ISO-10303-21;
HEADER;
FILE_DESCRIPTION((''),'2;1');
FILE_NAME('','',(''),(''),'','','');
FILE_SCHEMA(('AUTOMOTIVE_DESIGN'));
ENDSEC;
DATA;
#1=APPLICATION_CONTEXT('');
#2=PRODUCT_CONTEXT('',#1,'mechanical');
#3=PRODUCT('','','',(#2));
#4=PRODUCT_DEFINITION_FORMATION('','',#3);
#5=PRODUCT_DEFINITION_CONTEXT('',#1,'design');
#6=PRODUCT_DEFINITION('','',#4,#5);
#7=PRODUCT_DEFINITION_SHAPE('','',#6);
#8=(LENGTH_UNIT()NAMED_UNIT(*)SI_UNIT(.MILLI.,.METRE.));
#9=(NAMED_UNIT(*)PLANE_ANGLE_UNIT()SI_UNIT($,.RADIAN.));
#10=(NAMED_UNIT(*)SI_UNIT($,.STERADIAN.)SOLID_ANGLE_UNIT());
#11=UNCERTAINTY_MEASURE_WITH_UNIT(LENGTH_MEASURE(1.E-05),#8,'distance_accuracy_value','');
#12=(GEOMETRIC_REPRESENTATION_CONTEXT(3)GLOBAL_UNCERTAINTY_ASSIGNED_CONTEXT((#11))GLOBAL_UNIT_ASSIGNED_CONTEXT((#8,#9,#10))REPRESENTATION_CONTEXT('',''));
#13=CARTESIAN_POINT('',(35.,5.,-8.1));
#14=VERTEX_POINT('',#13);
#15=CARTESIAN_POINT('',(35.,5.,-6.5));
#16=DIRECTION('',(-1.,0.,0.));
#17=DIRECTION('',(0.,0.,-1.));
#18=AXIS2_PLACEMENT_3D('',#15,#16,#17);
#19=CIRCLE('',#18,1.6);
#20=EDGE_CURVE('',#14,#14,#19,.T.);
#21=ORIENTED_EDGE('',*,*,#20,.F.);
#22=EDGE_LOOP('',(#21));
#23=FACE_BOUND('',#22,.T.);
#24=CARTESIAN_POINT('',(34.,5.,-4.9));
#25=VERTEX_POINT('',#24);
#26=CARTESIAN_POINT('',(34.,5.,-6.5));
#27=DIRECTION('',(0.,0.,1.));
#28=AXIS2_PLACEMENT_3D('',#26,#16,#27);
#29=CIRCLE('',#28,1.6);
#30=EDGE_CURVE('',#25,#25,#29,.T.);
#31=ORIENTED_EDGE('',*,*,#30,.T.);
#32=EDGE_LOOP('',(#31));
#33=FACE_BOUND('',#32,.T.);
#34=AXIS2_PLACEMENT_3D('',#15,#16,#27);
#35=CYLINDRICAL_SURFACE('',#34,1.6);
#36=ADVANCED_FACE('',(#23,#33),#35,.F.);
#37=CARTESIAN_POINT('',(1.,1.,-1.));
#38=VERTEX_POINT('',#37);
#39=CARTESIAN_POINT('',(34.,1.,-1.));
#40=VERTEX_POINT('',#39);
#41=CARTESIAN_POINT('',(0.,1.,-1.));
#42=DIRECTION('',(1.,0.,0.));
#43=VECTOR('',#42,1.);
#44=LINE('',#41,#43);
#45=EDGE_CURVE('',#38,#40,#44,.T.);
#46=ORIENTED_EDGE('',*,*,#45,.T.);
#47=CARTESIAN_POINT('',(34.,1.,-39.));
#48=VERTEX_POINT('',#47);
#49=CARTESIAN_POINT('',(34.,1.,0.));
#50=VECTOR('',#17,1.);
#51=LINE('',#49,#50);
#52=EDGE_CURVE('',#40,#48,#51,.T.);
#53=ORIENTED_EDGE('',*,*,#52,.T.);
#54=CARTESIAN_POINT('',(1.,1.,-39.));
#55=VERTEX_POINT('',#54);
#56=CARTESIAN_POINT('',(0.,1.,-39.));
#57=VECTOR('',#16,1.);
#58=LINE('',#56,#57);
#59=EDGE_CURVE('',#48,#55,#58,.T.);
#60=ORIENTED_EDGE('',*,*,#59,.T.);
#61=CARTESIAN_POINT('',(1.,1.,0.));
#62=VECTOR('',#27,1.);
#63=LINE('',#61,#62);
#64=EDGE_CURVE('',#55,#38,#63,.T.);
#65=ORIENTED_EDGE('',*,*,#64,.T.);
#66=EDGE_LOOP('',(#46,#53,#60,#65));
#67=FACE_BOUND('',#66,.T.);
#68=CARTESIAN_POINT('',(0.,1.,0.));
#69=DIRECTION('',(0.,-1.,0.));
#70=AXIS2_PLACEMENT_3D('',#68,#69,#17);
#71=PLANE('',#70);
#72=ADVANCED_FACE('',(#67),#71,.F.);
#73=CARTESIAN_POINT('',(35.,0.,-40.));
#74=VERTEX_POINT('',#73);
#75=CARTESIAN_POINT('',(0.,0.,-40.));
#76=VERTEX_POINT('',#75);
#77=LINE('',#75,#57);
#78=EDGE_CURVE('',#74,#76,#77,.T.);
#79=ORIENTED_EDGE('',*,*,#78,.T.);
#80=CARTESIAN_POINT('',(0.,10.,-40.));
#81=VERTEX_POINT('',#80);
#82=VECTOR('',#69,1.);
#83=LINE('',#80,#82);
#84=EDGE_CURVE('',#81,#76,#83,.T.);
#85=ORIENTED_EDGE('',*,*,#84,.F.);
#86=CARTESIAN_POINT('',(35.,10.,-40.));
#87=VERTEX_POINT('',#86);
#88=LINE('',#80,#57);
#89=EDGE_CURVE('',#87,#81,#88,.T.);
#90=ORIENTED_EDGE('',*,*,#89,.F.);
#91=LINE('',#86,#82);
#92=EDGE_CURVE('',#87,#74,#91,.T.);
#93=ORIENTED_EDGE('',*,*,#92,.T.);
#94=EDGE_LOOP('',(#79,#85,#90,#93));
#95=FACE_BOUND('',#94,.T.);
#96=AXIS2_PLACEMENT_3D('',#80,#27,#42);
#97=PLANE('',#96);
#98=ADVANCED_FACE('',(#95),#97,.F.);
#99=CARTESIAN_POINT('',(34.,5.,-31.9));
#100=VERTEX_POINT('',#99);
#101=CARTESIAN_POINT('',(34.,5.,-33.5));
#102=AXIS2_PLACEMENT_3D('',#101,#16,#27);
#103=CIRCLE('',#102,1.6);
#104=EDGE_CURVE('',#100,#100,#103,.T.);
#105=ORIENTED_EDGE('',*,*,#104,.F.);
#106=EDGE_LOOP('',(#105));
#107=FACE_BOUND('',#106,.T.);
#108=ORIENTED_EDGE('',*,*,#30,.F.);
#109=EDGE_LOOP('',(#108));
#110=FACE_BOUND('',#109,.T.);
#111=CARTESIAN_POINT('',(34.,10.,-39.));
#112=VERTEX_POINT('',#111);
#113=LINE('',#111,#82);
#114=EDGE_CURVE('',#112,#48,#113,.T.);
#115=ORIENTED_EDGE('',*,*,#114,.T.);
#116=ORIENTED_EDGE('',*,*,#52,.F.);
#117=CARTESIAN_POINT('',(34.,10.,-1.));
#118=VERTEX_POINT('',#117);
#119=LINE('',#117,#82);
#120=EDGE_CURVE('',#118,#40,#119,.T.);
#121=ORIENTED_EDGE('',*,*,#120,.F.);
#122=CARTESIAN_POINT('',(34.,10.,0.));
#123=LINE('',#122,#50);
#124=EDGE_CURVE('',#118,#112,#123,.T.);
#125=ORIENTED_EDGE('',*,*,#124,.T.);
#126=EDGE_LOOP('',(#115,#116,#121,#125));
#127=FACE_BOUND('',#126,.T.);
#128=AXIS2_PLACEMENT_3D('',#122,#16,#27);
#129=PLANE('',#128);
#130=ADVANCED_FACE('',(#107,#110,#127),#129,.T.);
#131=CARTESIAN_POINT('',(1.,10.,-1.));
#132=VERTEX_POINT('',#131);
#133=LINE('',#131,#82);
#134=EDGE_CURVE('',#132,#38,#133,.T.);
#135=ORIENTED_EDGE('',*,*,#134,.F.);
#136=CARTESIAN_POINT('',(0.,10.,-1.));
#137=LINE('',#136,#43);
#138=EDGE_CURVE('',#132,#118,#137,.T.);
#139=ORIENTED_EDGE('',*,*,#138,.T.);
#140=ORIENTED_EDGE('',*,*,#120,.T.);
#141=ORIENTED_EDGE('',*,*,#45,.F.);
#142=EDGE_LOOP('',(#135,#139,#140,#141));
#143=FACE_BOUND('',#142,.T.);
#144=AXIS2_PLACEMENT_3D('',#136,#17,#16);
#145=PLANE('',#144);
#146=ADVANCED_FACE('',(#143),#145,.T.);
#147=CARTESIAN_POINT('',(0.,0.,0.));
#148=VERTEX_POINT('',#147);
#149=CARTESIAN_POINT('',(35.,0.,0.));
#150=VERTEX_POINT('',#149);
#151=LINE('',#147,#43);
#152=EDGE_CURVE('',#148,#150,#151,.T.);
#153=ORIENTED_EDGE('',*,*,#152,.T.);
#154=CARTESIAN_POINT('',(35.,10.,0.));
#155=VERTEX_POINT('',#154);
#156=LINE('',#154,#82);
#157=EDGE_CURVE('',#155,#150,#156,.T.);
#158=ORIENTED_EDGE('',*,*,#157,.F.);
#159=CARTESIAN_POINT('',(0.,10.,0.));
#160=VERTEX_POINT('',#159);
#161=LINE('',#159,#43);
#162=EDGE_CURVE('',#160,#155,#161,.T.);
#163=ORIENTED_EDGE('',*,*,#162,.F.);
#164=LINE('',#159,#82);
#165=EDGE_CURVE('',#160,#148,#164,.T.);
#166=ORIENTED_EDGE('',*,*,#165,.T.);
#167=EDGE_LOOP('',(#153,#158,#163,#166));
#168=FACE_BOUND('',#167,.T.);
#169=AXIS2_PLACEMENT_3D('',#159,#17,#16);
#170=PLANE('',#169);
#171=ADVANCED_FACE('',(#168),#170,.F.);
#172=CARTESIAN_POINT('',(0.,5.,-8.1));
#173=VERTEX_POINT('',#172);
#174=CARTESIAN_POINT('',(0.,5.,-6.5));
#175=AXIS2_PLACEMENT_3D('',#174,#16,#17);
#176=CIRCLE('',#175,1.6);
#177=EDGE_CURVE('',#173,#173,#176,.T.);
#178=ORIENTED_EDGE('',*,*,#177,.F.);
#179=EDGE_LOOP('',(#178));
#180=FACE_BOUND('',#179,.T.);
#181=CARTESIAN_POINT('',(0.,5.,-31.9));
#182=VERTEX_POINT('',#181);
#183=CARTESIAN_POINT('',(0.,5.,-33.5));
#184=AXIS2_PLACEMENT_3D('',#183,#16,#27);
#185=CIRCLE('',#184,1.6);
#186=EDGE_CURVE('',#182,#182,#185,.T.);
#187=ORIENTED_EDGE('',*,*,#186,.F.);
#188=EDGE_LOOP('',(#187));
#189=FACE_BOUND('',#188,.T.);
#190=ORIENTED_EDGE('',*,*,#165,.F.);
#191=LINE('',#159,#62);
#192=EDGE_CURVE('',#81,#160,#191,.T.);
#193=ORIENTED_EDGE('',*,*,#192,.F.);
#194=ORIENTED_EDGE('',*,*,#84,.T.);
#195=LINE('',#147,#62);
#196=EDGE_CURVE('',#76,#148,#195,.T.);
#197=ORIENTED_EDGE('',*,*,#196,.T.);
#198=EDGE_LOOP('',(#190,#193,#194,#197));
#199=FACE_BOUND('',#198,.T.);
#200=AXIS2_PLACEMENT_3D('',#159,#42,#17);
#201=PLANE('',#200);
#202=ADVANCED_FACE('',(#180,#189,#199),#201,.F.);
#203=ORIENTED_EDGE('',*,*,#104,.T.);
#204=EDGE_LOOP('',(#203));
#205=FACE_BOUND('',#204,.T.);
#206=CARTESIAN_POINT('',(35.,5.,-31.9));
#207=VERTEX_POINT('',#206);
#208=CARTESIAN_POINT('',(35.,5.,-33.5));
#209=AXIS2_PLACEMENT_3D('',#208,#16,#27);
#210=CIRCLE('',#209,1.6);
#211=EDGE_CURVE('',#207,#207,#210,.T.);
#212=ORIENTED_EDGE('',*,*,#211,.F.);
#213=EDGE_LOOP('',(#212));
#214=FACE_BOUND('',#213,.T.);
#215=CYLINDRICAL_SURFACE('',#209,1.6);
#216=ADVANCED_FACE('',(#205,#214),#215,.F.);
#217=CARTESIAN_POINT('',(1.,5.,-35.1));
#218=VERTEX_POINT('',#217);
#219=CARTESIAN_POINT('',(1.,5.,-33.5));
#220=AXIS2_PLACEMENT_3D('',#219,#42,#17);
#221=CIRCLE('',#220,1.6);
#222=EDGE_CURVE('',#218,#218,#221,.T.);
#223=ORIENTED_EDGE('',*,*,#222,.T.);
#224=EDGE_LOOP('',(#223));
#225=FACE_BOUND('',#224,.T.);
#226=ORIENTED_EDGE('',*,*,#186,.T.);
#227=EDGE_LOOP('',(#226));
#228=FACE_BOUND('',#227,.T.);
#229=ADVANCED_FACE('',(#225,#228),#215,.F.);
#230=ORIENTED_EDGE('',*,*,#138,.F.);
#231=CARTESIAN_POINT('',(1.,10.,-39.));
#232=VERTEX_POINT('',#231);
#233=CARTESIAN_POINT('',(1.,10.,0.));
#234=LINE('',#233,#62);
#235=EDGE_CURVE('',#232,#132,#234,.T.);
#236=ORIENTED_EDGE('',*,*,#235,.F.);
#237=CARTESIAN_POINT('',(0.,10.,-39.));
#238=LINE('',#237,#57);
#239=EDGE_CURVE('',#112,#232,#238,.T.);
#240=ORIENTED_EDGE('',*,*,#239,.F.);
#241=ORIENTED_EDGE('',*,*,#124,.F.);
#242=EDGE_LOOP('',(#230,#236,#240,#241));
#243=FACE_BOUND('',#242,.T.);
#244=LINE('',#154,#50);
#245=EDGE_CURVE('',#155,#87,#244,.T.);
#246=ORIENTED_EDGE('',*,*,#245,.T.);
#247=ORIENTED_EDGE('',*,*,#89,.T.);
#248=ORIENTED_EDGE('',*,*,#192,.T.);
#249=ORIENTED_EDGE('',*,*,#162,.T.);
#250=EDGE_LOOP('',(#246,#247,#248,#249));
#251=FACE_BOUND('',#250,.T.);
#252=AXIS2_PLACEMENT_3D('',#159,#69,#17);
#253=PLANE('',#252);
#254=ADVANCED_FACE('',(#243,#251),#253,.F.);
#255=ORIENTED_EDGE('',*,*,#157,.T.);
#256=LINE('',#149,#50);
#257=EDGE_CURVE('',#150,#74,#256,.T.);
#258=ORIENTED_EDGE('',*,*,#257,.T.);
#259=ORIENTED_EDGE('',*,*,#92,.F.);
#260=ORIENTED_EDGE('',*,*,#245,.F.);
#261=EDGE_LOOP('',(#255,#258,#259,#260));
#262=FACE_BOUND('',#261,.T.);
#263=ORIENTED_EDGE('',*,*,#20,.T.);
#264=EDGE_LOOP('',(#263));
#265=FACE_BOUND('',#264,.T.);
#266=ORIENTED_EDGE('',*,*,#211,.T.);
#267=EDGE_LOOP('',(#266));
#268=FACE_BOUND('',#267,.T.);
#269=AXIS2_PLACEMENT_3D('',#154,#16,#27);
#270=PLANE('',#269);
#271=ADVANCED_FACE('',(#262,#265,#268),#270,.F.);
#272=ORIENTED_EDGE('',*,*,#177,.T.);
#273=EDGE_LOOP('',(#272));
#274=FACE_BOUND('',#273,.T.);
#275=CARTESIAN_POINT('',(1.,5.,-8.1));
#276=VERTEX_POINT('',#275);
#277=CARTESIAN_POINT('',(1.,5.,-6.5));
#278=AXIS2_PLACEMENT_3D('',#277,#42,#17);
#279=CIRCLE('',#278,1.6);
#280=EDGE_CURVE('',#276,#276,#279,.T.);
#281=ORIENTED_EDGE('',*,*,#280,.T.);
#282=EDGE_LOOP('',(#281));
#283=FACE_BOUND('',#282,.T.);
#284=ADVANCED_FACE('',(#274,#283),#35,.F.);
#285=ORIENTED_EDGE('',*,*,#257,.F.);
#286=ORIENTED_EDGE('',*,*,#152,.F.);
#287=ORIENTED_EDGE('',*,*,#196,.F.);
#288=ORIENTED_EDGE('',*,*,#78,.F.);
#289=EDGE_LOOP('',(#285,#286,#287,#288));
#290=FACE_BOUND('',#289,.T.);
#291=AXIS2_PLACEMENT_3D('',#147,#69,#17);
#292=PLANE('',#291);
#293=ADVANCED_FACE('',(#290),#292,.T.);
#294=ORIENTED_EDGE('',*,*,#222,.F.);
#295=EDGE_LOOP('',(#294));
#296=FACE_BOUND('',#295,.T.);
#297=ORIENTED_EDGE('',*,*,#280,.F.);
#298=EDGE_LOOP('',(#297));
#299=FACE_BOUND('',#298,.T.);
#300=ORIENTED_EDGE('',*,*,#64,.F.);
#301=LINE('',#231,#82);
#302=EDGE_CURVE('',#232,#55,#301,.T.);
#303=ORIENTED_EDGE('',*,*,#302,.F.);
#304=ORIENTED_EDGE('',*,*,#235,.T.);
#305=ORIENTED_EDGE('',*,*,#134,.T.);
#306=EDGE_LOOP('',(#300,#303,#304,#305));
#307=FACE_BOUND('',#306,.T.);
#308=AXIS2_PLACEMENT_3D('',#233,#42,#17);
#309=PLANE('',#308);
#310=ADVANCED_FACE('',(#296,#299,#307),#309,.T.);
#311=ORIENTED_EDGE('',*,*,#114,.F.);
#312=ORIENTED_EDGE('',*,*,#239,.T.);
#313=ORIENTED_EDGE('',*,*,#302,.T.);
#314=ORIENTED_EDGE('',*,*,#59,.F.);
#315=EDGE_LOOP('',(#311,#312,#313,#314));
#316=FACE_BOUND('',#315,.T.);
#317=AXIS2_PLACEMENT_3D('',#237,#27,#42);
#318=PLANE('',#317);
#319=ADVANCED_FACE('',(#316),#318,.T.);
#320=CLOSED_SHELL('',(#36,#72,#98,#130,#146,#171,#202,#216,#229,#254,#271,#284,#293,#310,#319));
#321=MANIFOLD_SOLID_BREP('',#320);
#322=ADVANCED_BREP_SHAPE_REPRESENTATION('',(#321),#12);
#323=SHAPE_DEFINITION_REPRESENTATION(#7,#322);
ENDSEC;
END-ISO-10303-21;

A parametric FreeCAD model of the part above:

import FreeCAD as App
import Part
import Sketcher
Q = App.Units.Quantity


def faces_at(feature, points):
    """Names of the faces that lie closest to the given points."""
    faces = feature.Shape.Faces
    near = lambda p: min(range(len(faces)), key=lambda i: faces[i].distToShape(Part.Vertex(*p))[0])
    return sorted({f"Face{near(p) + 1}" for p in points})


def add_polygon(sketch, points):
    """Adds a closed chain of lines whose ends are joined by coincident constraints."""
    first, n = sketch.GeometryCount, len(points)
    for a, b in zip(points, points[1:] + points[:1]):
        sketch.addGeometry(Part.LineSegment(App.Vector(*a, 0), App.Vector(*b, 0)), False)
    for i in range(n):
        sketch.addConstraint(Sketcher.Constraint("Coincident", first + i, 2, first + (i + 1) % n, 1))

doc = App.newDocument("Part")
params = doc.addObject("Spreadsheet::Sheet", "Params")
for row, (alias, value) in enumerate([
    ("sketch1_width", "35 mm"),
    ("sketch1_height", "40 mm"),
    ("pad1_length", "10 mm"),
    ("thickness_wall", "1 mm"),
    ("sketch2_diameter", "3.2 mm"),
], start=1):
    params.set(f"A{row}", alias)
    params.set(f"B{row}", "=" + value)
    params.setAlias(f"B{row}", alias)

body = doc.addObject("PartDesign::Body", "Body")

# Sketch on XZ plane
sketch1 = doc.addObject("Sketcher::SketchObject", "Sketch")
body.addObject(sketch1)
sketch1.AttachmentSupport = (doc.XZ_Plane, [""])
sketch1.MapMode = "FlatFace"
add_polygon(sketch1, [(0, -40), (0, 0), (35, 0), (35, -40)])  # lines 0-3
sketch1.addConstraint(Sketcher.Constraint("Vertical", 0))
sketch1.addConstraint(Sketcher.Constraint("Horizontal", 1))
sketch1.addConstraint(Sketcher.Constraint("Vertical", 2))
sketch1.addConstraint(Sketcher.Constraint("Horizontal", 3))
sketch1.addConstraint(Sketcher.Constraint("Coincident", 0, 2, -1, 1))
sketch1.addConstraint(Sketcher.Constraint("DistanceX", 1, 1, 1, 2, Q("35 mm")))
sketch1.addConstraint(Sketcher.Constraint("DistanceY", 0, 1, 0, 2, Q("40 mm")))
sketch1.setExpression("Constraints[9]", "Params.sketch1_width")
sketch1.setExpression("Constraints[10]", "Params.sketch1_height")
pad1 = doc.addObject("PartDesign::Pad", "Pad")
body.addObject(pad1)
pad1.Profile = sketch1
pad1.setExpression("Length", "Params.pad1_length")
pad1.Reversed = True
doc.recompute()

thickness = doc.addObject("PartDesign::Thickness", "Thickness")
body.addObject(thickness)
thickness.Base = (pad1, faces_at(pad1, [(17.5, 10, -20)]))
thickness.setExpression("Value", "Params.thickness_wall")
thickness.Reversed = True
thickness.Join = "Intersection"

# Sketch on YZ plane
sketch2 = doc.addObject("Sketcher::SketchObject", "Sketch001")
body.addObject(sketch2)
sketch2.AttachmentSupport = (doc.YZ_Plane, [""])
sketch2.MapMode = "FlatFace"
sketch2.addGeometry(Part.Circle(App.Vector(5, -33.5, 0), App.Vector(0, 0, 1), 1.6), False)
sketch2.addGeometry(Part.Circle(App.Vector(5, -6.5, 0), App.Vector(0, 0, 1), 1.6), False)
sketch2.addConstraint(Sketcher.Constraint("Equal", 0, 1))
sketch2.addConstraint(Sketcher.Constraint("Vertical", 0, 3, 1, 3))
sketch2.addConstraint(Sketcher.Constraint("Diameter", 0, Q("3.2 mm")))
sketch2.addConstraint(Sketcher.Constraint("DistanceX", -1, 1, 0, 3, Q("5 mm")))
sketch2.addConstraint(Sketcher.Constraint("DistanceY", 0, 3, 1, 3, Q("27 mm")))
sketch2.addConstraint(Sketcher.Constraint("DistanceY", 0, 3, -1, 1, Q("33.5 mm")))
sketch2.setExpression("Constraints[2]", "Params.sketch2_diameter")
pocket1 = doc.addObject("PartDesign::Pocket", "Pocket")
body.addObject(pocket1)
pocket1.Profile = sketch2
pocket1.Type = "ThroughAll"
pocket1.Reversed = True

doc.recompute()
